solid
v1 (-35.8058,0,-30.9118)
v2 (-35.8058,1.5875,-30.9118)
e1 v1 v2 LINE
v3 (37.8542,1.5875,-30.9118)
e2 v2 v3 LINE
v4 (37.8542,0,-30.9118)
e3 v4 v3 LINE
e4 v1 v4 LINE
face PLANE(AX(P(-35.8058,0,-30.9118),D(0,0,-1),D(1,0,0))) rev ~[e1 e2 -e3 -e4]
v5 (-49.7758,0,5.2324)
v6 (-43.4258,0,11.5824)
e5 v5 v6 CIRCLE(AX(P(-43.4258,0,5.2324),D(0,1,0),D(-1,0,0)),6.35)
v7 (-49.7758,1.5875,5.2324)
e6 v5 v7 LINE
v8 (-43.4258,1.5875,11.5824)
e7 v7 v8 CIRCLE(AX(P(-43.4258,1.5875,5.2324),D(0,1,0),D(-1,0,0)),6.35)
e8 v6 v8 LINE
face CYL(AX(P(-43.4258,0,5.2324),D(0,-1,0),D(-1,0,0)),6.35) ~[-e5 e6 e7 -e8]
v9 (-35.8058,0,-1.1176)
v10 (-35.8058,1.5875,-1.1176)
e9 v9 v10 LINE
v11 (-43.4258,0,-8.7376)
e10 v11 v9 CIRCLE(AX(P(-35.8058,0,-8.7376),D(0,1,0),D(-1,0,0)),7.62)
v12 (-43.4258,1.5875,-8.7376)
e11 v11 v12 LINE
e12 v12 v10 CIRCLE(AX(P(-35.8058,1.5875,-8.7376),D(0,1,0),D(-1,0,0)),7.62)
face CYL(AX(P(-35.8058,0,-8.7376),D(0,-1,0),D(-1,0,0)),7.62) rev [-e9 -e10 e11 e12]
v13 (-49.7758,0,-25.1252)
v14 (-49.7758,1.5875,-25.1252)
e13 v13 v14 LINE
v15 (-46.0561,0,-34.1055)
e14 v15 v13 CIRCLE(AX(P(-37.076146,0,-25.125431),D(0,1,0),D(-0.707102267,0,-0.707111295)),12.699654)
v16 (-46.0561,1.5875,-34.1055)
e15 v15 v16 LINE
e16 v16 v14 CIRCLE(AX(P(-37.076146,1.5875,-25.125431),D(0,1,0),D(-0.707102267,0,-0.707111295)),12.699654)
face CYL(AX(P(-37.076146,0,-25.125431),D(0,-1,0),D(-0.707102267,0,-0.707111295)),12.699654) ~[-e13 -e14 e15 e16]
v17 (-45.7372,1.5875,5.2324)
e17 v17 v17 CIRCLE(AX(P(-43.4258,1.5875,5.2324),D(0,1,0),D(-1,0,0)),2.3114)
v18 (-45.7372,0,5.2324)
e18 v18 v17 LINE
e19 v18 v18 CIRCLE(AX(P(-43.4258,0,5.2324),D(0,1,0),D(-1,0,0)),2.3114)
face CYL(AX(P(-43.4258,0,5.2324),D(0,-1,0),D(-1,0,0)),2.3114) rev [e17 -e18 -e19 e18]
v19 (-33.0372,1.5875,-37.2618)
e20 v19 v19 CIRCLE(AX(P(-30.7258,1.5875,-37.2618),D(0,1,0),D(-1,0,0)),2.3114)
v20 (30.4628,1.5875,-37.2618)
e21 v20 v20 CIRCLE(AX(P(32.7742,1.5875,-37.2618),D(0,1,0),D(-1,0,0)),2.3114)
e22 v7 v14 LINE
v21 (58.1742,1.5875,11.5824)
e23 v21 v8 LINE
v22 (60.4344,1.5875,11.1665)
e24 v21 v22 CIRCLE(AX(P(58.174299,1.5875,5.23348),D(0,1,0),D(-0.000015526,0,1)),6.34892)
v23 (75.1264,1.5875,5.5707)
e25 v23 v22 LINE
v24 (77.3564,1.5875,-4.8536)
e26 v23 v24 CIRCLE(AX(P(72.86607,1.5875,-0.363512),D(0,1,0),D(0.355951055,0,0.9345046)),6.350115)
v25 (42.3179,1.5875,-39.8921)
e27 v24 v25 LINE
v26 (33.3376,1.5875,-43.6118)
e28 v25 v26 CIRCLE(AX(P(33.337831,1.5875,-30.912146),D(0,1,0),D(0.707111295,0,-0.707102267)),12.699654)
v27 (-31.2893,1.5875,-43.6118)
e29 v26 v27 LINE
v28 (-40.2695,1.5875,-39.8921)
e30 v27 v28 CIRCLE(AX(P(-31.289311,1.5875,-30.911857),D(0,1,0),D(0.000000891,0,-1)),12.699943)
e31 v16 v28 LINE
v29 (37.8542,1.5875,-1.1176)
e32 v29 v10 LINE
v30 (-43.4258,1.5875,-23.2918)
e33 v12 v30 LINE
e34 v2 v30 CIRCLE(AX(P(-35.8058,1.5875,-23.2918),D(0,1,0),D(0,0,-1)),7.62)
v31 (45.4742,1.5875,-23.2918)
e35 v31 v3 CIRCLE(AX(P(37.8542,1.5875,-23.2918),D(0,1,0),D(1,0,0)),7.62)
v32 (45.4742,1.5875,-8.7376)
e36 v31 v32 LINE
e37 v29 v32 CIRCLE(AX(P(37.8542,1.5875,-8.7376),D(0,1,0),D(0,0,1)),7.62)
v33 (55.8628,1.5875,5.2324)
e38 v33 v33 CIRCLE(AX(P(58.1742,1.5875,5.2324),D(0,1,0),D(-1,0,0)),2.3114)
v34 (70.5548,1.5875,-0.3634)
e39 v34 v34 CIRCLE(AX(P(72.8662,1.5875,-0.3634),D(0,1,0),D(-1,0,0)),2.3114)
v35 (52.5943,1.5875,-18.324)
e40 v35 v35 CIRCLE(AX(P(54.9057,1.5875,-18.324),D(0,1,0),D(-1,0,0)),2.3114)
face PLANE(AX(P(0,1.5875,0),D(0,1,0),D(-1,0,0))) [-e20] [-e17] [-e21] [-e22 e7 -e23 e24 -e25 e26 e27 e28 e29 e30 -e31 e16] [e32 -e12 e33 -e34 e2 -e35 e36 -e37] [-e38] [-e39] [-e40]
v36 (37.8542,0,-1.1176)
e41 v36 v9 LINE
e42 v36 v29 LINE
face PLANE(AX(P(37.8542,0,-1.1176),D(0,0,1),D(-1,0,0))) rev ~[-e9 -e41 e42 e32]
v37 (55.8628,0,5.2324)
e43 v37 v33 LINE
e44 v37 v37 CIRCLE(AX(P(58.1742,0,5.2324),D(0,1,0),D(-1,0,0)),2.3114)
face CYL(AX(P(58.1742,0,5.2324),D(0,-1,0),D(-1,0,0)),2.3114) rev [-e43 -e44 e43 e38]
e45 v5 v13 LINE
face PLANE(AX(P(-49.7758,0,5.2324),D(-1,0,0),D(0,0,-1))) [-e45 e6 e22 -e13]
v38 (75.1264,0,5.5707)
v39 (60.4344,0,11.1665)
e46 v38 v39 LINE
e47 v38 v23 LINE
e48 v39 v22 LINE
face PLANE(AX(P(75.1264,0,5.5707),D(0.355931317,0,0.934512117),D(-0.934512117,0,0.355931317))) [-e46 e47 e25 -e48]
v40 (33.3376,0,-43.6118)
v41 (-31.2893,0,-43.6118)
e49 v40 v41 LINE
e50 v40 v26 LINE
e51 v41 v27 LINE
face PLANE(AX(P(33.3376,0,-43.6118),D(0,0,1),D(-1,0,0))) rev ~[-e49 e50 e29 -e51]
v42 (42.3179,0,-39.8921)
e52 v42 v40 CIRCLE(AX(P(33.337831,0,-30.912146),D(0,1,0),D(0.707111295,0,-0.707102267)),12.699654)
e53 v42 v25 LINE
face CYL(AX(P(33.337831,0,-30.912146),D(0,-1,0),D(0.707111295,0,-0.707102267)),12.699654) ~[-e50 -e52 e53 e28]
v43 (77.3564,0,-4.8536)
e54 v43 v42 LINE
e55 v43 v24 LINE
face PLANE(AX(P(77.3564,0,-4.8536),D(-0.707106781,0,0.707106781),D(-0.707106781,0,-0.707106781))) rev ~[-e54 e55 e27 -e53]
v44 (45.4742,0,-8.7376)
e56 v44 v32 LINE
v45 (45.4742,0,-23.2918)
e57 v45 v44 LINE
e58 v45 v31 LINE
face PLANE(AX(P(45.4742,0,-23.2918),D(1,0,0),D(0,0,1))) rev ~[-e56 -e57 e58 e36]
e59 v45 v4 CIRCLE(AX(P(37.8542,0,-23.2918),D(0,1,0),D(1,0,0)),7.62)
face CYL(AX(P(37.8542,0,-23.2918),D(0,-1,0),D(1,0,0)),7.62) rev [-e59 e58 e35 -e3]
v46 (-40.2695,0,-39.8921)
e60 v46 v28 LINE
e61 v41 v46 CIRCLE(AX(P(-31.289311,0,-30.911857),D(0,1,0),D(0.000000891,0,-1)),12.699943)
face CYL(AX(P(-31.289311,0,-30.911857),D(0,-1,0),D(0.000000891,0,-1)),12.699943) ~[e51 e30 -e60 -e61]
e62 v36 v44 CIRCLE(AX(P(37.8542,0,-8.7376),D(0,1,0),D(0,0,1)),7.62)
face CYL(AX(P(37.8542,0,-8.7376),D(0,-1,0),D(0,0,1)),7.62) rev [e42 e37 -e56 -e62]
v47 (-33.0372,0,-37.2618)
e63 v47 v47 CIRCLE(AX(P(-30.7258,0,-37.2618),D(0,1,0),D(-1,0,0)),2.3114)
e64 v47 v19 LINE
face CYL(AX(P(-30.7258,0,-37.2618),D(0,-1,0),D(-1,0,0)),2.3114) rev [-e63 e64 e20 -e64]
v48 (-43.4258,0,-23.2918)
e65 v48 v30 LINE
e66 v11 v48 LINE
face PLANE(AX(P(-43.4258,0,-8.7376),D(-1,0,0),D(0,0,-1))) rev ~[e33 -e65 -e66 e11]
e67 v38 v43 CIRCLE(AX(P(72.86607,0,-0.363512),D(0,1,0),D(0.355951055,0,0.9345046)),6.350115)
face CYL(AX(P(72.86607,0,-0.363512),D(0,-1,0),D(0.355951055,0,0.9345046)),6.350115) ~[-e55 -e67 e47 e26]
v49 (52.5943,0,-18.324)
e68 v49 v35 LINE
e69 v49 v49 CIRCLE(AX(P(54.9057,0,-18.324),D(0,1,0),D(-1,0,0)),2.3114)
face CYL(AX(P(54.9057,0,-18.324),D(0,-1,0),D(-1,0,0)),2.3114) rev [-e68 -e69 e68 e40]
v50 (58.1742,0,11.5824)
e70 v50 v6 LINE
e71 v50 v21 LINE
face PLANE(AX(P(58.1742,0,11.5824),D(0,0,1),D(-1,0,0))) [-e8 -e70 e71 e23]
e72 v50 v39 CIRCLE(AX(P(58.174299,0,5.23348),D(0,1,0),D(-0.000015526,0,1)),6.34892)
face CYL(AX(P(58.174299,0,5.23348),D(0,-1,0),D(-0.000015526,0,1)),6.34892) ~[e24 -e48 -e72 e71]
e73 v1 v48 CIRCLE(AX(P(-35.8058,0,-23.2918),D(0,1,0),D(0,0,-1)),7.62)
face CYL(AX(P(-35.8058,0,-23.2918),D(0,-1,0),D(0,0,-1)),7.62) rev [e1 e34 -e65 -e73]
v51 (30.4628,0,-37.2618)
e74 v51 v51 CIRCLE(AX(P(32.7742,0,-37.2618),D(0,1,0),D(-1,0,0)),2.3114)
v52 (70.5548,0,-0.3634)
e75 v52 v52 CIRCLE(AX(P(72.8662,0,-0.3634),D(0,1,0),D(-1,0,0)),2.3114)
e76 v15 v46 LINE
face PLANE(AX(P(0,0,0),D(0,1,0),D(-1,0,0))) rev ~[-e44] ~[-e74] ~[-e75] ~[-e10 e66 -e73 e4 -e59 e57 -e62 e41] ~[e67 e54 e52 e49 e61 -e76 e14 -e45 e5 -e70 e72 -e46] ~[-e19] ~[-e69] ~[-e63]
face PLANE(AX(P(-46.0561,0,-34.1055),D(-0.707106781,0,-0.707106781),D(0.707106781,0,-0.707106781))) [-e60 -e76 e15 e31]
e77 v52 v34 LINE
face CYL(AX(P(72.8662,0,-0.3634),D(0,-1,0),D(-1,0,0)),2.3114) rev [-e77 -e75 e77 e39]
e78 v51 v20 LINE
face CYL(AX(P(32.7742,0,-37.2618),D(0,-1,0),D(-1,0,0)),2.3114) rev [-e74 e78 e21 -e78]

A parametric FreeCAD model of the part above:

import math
import FreeCAD as App
import Part
import Sketcher
Q = App.Units.Quantity

doc = App.newDocument("Part")
params = doc.addObject("Spreadsheet::Sheet", "Params")
for row, (alias, value) in enumerate([
    ("sketch1_radius", "0.5 in"),
    ("sketch1_radius2", "0.3 in"),
    ("sketch1_radius3", "0.25 in"),
    ("sketch1_width", "4 in"),
    ("sketch1_diameter", "0.182 in"),
    ("pad1_length", "0.0625 in"),
], start=1):
    params.set(f"A{row}", alias)
    params.set(f"B{row}", "=" + value)
    params.setAlias(f"B{row}", alias)

body = doc.addObject("PartDesign::Body", "Body")

# Sketch on XZ plane
sketch1 = body.newObject("Sketcher::SketchObject", "Sketch")
sketch1.AttachmentSupport = (doc.getObject("XZ_Plane"), [""])
sketch1.MapMode = "FlatFace"
sketch1.addGeometry(Part.LineSegment(App.Vector(-49.7758, -25.1252, 0), App.Vector(-49.7758, 5.2324, 0)), False)
sketch1.addGeometry(Part.ArcOfCircle(Part.Circle(App.Vector(-43.4258, 5.2324, 0), App.Vector(0, 0, 1), 6.35), math.radians(90), math.radians(180)), False)
sketch1.addGeometry(Part.LineSegment(App.Vector(-43.4258, 11.5824, 0), App.Vector(58.1742, 11.5824, 0)), False)
sketch1.addGeometry(Part.ArcOfCircle(Part.Circle(App.Vector(58.174299, 5.23348, 0), App.Vector(0, 0, 1), 6.34892), math.radians(69.146356), math.radians(90.00089)), False)
sketch1.addGeometry(Part.LineSegment(App.Vector(60.4344, 11.1665, 0), App.Vector(75.1264, 5.5707, 0)), False)
sketch1.addGeometry(Part.ArcOfCircle(Part.Circle(App.Vector(72.8662, -0.3634, 0), App.Vector(0, 0, 1), 6.349964), math.radians(-45), math.radians(69.148995)), False)
sketch1.addGeometry(Part.LineSegment(App.Vector(77.3564, -4.8536, 0), App.Vector(42.3179, -39.8921, 0)), False)
sketch1.addGeometry(Part.ArcOfCircle(Part.Circle(App.Vector(33.3376, -30.9118, 0), App.Vector(0, 0, 1), 12.700062), math.radians(-90), math.radians(-45)), False)
sketch1.addGeometry(Part.LineSegment(App.Vector(33.3376, -43.6118, 0), App.Vector(-31.2893, -43.6118, 0)), False)
sketch1.addGeometry(Part.ArcOfCircle(Part.Circle(App.Vector(-31.2893, -30.9118, 0), App.Vector(0, 0, 1), 12.7), math.radians(-134.999681), math.radians(-90)), False)
sketch1.addGeometry(Part.LineSegment(App.Vector(-40.2695, -39.8921, 0), App.Vector(-46.0561, -34.1055, 0)), False)
sketch1.addGeometry(Part.ArcOfCircle(Part.Circle(App.Vector(-37.0758, -25.1252, 0), App.Vector(0, 0, 1), 12.700062), math.radians(180), math.radians(225)), False)
sketch1.addGeometry(Part.Circle(App.Vector(32.7742, -37.2618, 0), App.Vector(0, 0, 1), 2.3114), False)
sketch1.addGeometry(Part.Circle(App.Vector(54.9057, -18.324, 0), App.Vector(0, 0, 1), 2.3114), False)
sketch1.addGeometry(Part.Circle(App.Vector(-30.7258, -37.2618, 0), App.Vector(0, 0, 1), 2.3114), False)
sketch1.addGeometry(Part.Circle(App.Vector(72.8662, -0.3634, 0), App.Vector(0, 0, 1), 2.3114), False)
sketch1.addGeometry(Part.Circle(App.Vector(58.1742, 5.2324, 0), App.Vector(0, 0, 1), 2.3114), False)
sketch1.addGeometry(Part.ArcOfCircle(Part.Circle(App.Vector(37.8542, -8.7376, 0), App.Vector(0, 0, 1), 7.62), math.radians(0), math.radians(90)), False)
sketch1.addGeometry(Part.LineSegment(App.Vector(37.8542, -1.1176, 0), App.Vector(-35.8058, -1.1176, 0)), False)
sketch1.addGeometry(Part.ArcOfCircle(Part.Circle(App.Vector(-35.8058, -8.7376, 0), App.Vector(0, 0, 1), 7.62), math.radians(90), math.radians(180)), False)
sketch1.addGeometry(Part.LineSegment(App.Vector(-43.4258, -8.7376, 0), App.Vector(-43.4258, -23.2918, 0)), False)
sketch1.addGeometry(Part.ArcOfCircle(Part.Circle(App.Vector(-35.8058, -23.2918, 0), App.Vector(0, 0, 1), 7.62), math.radians(180), math.radians(270)), False)
sketch1.addGeometry(Part.LineSegment(App.Vector(-35.8058, -30.9118, 0), App.Vector(37.8542, -30.9118, 0)), False)
sketch1.addGeometry(Part.ArcOfCircle(Part.Circle(App.Vector(37.8542, -23.2918, 0), App.Vector(0, 0, 1), 7.62), math.radians(-90), math.radians(0)), False)
sketch1.addGeometry(Part.LineSegment(App.Vector(45.4742, -23.2918, 0), App.Vector(45.4742, -8.7376, 0)), False)
sketch1.addGeometry(Part.Circle(App.Vector(-43.4258, 5.2324, 0), App.Vector(0, 0, 1), 2.3114), False)
sketch1.addConstraint(Sketcher.Constraint("Tangent", 0, 2, 1, 2))
sketch1.addConstraint(Sketcher.Constraint("Tangent", 1, 1, 2, 1))
sketch1.addConstraint(Sketcher.Constraint("Tangent", 2, 2, 3, 2))
sketch1.addConstraint(Sketcher.Constraint("Tangent", 3, 1, 4, 1))
sketch1.addConstraint(Sketcher.Constraint("Tangent", 4, 2, 5, 2))
sketch1.addConstraint(Sketcher.Constraint("Tangent", 5, 1, 6, 1))
sketch1.addConstraint(Sketcher.Constraint("Tangent", 6, 2, 7, 2))
sketch1.addConstraint(Sketcher.Constraint("Tangent", 7, 1, 8, 1))
sketch1.addConstraint(Sketcher.Constraint("Tangent", 8, 2, 9, 2))
sketch1.addConstraint(Sketcher.Constraint("Tangent", 9, 1, 10, 1))
sketch1.addConstraint(Sketcher.Constraint("Tangent", 10, 2, 11, 2))
sketch1.addConstraint(Sketcher.Constraint("Tangent", 11, 1, 0, 1))
sketch1.addConstraint(Sketcher.Constraint("Tangent", 17, 2, 18, 1))
sketch1.addConstraint(Sketcher.Constraint("Tangent", 18, 2, 19, 1))
sketch1.addConstraint(Sketcher.Constraint("Tangent", 19, 2, 20, 1))
sketch1.addConstraint(Sketcher.Constraint("Tangent", 20, 2, 21, 1))
sketch1.addConstraint(Sketcher.Constraint("Tangent", 21, 2, 22, 1))
sketch1.addConstraint(Sketcher.Constraint("Tangent", 22, 2, 23, 1))
sketch1.addConstraint(Sketcher.Constraint("Tangent", 23, 2, 24, 1))
sketch1.addConstraint(Sketcher.Constraint("Tangent", 24, 2, 17, 1))
sketch1.addConstraint(Sketcher.Constraint("Vertical", 0))
sketch1.addConstraint(Sketcher.Constraint("Horizontal", 2))
sketch1.addConstraint(Sketcher.Constraint("Horizontal", 8))
sketch1.addConstraint(Sketcher.Constraint("Horizontal", 18))
sketch1.addConstraint(Sketcher.Constraint("Vertical", 20))
sketch1.addConstraint(Sketcher.Constraint("Horizontal", 22))
sketch1.addConstraint(Sketcher.Constraint("Vertical", 24))
sketch1.addConstraint(Sketcher.Constraint("Coincident", 15, 3, 5, 3))
sketch1.addConstraint(Sketcher.Constraint("Coincident", 25, 3, 1, 3))
sketch1.addConstraint(Sketcher.Constraint("Equal", 1, 5))
sketch1.addConstraint(Sketcher.Constraint("Equal", 7, 9))
sketch1.addConstraint(Sketcher.Constraint("Equal", 9, 11))
sketch1.addConstraint(Sketcher.Constraint("Equal", 12, 13))
sketch1.addConstraint(Sketcher.Constraint("Equal", 13, 14))
sketch1.addConstraint(Sketcher.Constraint("Equal", 14, 15))
sketch1.addConstraint(Sketcher.Constraint("Equal", 15, 16))
sketch1.addConstraint(Sketcher.Constraint("Equal", 17, 19))
sketch1.addConstraint(Sketcher.Constraint("Equal", 19, 21))
sketch1.addConstraint(Sketcher.Constraint("Equal", 21, 23))
sketch1.addConstraint(Sketcher.Constraint("Equal", 16, 25))
sketch1.addConstraint(Sketcher.Constraint("Perpendicular", 6, 10))
sketch1.addConstraint(Sketcher.Constraint("Horizontal", 12, 3, 14, 3))
sketch1.addConstraint(Sketcher.Constraint("Horizontal", 1, 3, 16, 3))
sketch1.addConstraint(Sketcher.Constraint("Horizontal", 6, 2, 9, 1))
sketch1.addConstraint(Sketcher.Constraint("Horizontal", 9, 3, 21, 2))
sketch1.addConstraint(Sketcher.Constraint("Vertical", 3, 3, 16, 3))
sketch1.addConstraint(Sketcher.Constraint("Vertical", 1, 1, 19, 2))
sketch1.addConstraint(Sketcher.Constraint("Radius", 7, Q("0.5 in")))
sketch1.addConstraint(Sketcher.Constraint("Radius", 17, Q("0.3 in")))
sketch1.addConstraint(Sketcher.Constraint("Radius", 1, Q("0.25 in")))
sketch1.addConstraint(Sketcher.Constraint("DistanceX", 1, 3, 14, 3, Q("0.5 in")))
sketch1.addConstraint(Sketcher.Constraint("DistanceY", 17, 2, 2, 2, Q("0.5 in")))
sketch1.addConstraint(Sketcher.Constraint("DistanceX", 2, 1, 2, 2, Q("4 in")))
sketch1.addConstraint(Sketcher.Constraint("Diameter", 12, Q("0.182 in")))
sketch1.addConstraint(Sketcher.Constraint("DistanceX", 18, 2, 18, 1, Q("2.9 in")))
sketch1.addConstraint(Sketcher.Constraint("DistanceX", 12, 3, 3, 3, Q("1 in")))
sketch1.addConstraint(Sketcher.Constraint("DistanceY", 20, 2, 20, 1, Q("0.573 in")))
sketch1.addConstraint(Sketcher.Constraint("Angle", 4, Q("-20.8505 deg")))
sketch1.addConstraint(Sketcher.Constraint("Radius", 3, Q("6.349 mm")))
sketch1.addConstraint(Sketcher.Constraint("DistanceY", 12, 3, 7, 3, Q("0.25 in")))
sketch1.addConstraint(Sketcher.Constraint("DistanceY", -1, 1, 1, 3, Q("0.206 in")))
sketch1.addConstraint(Sketcher.Constraint("DistanceX", -1, 1, 7, 3, Q("1.3125 in")))
sketch1.addConstraint(Sketcher.Constraint("DistanceX", 8, 2, 8, 1, Q("64.627 mm")))
sketch1.addConstraint(Sketcher.Constraint("DistanceY", 0, 1, 0, 2, Q("30.3576 mm")))
sketch1.addConstraint(Sketcher.Constraint("DistanceX", 13, 3, 5, 3, Q("0.7071 in")))
sketch1.addConstraint(Sketcher.Constraint("DistanceY", 13, 3, 5, 3, Q("0.7071 in")))
sketch1.setExpression("Constraints[47]", "Params.sketch1_radius")
sketch1.setExpression("Constraints[48]", "Params.sketch1_radius2")
sketch1.setExpression("Constraints[49]", "Params.sketch1_radius3")
sketch1.setExpression("Constraints[52]", "Params.sketch1_width")
sketch1.setExpression("Constraints[53]", "Params.sketch1_diameter")
pad1 = body.newObject("PartDesign::Pad", "Pad")
pad1.Profile = sketch1
pad1.setExpression("Length", "Params.pad1_length")
pad1.Reversed = True

doc.recompute()
